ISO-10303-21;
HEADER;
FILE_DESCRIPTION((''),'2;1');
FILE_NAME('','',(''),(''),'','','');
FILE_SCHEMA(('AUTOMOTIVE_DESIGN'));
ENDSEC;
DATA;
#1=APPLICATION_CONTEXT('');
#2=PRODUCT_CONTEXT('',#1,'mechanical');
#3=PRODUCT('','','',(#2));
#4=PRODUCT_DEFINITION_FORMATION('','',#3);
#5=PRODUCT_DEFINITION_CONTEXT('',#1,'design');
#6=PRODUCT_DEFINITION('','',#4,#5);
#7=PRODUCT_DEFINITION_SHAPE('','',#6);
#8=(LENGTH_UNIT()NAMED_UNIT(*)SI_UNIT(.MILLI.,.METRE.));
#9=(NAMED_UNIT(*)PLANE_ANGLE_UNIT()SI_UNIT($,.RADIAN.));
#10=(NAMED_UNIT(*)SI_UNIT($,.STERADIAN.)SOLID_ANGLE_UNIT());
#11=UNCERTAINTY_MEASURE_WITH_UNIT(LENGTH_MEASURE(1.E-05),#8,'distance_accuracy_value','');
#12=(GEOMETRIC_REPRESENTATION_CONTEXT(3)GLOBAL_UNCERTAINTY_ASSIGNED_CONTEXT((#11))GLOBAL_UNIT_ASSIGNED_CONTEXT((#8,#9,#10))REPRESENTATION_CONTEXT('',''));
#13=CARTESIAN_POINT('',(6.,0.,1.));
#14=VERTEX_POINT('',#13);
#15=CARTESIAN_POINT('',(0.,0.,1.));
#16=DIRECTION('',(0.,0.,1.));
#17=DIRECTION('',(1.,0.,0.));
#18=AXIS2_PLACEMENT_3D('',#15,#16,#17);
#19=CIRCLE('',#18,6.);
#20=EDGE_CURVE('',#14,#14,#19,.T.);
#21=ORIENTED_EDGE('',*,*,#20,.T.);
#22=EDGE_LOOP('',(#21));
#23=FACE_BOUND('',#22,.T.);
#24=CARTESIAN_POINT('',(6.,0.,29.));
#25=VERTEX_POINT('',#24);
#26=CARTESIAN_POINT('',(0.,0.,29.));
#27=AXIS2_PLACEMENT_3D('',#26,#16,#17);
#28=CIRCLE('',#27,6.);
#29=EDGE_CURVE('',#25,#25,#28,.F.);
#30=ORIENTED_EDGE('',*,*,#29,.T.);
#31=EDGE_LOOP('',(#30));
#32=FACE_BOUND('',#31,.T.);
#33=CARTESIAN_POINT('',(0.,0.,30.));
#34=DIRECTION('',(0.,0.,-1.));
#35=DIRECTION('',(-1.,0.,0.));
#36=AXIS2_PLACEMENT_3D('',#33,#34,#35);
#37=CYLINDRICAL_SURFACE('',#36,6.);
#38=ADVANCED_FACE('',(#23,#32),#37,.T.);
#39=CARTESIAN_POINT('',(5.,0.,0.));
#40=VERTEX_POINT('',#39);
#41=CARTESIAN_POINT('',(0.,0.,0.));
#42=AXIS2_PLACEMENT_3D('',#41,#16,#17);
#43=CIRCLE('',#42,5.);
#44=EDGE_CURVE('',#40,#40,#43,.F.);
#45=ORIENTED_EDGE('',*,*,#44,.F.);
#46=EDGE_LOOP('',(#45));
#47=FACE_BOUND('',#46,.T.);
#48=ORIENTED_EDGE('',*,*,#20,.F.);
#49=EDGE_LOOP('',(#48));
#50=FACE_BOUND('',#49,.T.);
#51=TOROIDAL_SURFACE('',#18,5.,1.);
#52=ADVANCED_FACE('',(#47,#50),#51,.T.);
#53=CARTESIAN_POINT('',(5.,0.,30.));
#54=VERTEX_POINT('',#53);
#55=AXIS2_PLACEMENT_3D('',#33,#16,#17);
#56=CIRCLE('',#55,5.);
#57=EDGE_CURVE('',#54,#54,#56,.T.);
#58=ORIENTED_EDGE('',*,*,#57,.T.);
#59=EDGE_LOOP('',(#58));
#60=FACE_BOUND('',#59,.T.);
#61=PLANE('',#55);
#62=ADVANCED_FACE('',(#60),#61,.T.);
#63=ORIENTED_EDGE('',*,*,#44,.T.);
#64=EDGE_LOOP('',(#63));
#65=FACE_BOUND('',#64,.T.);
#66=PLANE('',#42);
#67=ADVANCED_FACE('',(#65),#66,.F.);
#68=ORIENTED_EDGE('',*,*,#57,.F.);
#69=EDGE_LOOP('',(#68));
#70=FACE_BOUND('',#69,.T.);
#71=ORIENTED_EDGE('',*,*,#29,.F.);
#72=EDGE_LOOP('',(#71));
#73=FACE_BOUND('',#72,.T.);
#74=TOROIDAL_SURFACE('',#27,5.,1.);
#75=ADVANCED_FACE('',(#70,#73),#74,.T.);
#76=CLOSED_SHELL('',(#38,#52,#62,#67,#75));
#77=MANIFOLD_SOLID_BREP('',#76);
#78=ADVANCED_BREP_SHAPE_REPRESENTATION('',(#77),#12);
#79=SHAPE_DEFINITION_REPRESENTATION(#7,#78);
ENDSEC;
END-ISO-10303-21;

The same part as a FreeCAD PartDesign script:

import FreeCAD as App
import Part
import Sketcher
Q = App.Units.Quantity


def edges_at(feature, points):
    """Names of the edges that pass closest to the given points."""
    edges = feature.Shape.Edges
    near = lambda p: min(range(len(edges)), key=lambda i: edges[i].distToShape(Part.Vertex(*p))[0])
    return sorted({f"Edge{near(p) + 1}" for p in points})

doc = App.newDocument("Part")
body = doc.addObject("PartDesign::Body", "Body")

# Sketch on XY plane
sketch1 = body.newObject("Sketcher::SketchObject", "Sketch")
sketch1.AttachmentSupport = (doc.getObject("XY_Plane"), [""])
sketch1.MapMode = "FlatFace"
sketch1.addGeometry(Part.Circle(App.Vector(0, 0, 0), App.Vector(0, 0, 1), 6), False)
sketch1.addConstraint([
    Sketcher.Constraint("Coincident", 0, 3, -1, 1),
    Sketcher.Constraint("Diameter", 0, Q("12 mm")),
])
pad1 = body.newObject("PartDesign::Pad", "Pad")
pad1.Profile = sketch1
pad1.Length = 30
doc.recompute()

fillet = body.newObject("PartDesign::Fillet", "Fillet")
fillet.Base = (pad1, edges_at(pad1, [(-6, 0, 0), (-6, 0, 30)]))
fillet.Radius = 1

doc.recompute()
